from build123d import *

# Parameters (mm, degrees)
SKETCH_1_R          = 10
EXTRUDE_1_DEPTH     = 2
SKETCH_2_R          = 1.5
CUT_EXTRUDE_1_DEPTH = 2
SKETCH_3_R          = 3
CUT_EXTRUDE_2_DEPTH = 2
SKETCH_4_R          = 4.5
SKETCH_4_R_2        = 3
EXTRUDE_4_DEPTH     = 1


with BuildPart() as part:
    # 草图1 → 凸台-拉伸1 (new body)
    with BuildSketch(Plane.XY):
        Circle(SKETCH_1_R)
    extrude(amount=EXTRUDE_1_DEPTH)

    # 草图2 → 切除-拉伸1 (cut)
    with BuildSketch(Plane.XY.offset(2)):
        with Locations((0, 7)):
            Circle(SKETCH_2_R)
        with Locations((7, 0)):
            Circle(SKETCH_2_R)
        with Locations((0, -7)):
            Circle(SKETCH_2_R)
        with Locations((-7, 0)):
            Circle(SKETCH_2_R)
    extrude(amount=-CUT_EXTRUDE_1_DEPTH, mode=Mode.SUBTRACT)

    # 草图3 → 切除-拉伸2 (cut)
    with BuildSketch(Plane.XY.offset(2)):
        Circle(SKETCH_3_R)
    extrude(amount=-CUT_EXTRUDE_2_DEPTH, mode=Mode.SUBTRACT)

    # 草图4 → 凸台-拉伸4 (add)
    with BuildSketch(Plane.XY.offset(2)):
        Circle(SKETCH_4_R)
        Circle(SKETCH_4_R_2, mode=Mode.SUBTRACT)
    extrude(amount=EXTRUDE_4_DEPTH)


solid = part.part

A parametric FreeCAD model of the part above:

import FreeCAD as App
import Part
import Sketcher

V = App.Vector
Q = App.Units.Quantity

doc = App.newDocument("Part")
body = doc.addObject("PartDesign::Body", "Body")

# Sketch on XY plane
sketch1 = body.newObject("Sketcher::SketchObject", "Sketch")
sketch1.AttachmentSupport = (doc.getObject("XY_Plane"), [""])
sketch1.MapMode = "FlatFace"
sketch1.addGeometry(Part.Circle(V(0, 0, 0), V(0, 0, 1), 10), False)
sketch1.addConstraint([
    Sketcher.Constraint("Coincident", 0, 3, -1, 1),
    Sketcher.Constraint("Diameter", 0, Q("20 mm")),
])
pad1 = body.newObject("PartDesign::Pad", "Pad")
pad1.Profile = sketch1
pad1.Length = 2

# Sketch on XY plane
sketch2 = body.newObject("Sketcher::SketchObject", "Sketch001")
sketch2.AttachmentSupport = (doc.getObject("XY_Plane"), [""])
sketch2.MapMode = "FlatFace"
sketch2.AttachmentOffset = App.Placement(V(0, 0, 2), App.Rotation())
sketch2.addGeometry([
    Part.Circle(V(0, 7, 0), V(0, 0, 1), 1.5),
    Part.Circle(V(7, 0, 0), V(0, 0, 1), 1.5),
    Part.Circle(V(0, -7, 0), V(0, 0, 1), 1.5),
    Part.Circle(V(-7, 0, 0), V(0, 0, 1), 1.5),
], False)
sketch2.addConstraint([
    Sketcher.Constraint("Equal", 0, 1),
    Sketcher.Constraint("Equal", 1, 2),
    Sketcher.Constraint("Equal", 2, 3),
    Sketcher.Constraint("Symmetric", 0, 3, 2, 3, -1, 1),
    Sketcher.Constraint("Symmetric", 1, 3, 3, 3, -1, 1),
    Sketcher.Constraint("PointOnObject", 0, 3, -2),
    Sketcher.Constraint("PointOnObject", 1, 3, -1),
    Sketcher.Constraint("Diameter", 0, Q("3 mm")),
    Sketcher.Constraint("DistanceY", -1, 1, 0, 3, Q("7 mm")),
    Sketcher.Constraint("DistanceX", -1, 1, 1, 3, Q("7 mm")),
])
pocket1 = body.newObject("PartDesign::Pocket", "Pocket")
pocket1.Profile = sketch2
pocket1.Length = 2

# Sketch on XY plane
sketch3 = body.newObject("Sketcher::SketchObject", "Sketch002")
sketch3.AttachmentSupport = (doc.getObject("XY_Plane"), [""])
sketch3.MapMode = "FlatFace"
sketch3.AttachmentOffset = App.Placement(V(0, 0, 2), App.Rotation())
sketch3.addGeometry(Part.Circle(V(0, 0, 0), V(0, 0, 1), 3), False)
sketch3.addConstraint([
    Sketcher.Constraint("Coincident", 0, 3, -1, 1),
    Sketcher.Constraint("Diameter", 0, Q("6 mm")),
])
pocket2 = body.newObject("PartDesign::Pocket", "Pocket001")
pocket2.Profile = sketch3
pocket2.Length = 2

# Sketch on XY plane
sketch4 = body.newObject("Sketcher::SketchObject", "Sketch003")
sketch4.AttachmentSupport = (doc.getObject("XY_Plane"), [""])
sketch4.MapMode = "FlatFace"
sketch4.AttachmentOffset = App.Placement(V(0, 0, 2), App.Rotation())
sketch4.addGeometry([
    Part.Circle(V(0, 0, 0), V(0, 0, 1), 4.5),
    Part.Circle(V(0, 0, 0), V(0, 0, 1), 3),
], False)
sketch4.addConstraint([
    Sketcher.Constraint("Coincident", 0, 3, -1, 1),
    Sketcher.Constraint("Coincident", 1, 3, -1, 1),
    Sketcher.Constraint("Diameter", 0, Q("9 mm")),
    Sketcher.Constraint("Diameter", 1, Q("6 mm")),
])
pad2 = body.newObject("PartDesign::Pad", "Pad001")
pad2.Profile = sketch4
pad2.Length = 1

doc.recompute()
